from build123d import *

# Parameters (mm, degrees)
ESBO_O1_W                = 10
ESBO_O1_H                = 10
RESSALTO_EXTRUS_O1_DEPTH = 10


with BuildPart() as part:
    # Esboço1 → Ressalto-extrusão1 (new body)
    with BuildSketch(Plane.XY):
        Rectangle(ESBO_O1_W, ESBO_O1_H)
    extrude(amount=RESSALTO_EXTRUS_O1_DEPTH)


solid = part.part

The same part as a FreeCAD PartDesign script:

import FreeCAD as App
import Part
import Sketcher
Q = App.Units.Quantity

doc = App.newDocument("Part")
params = doc.addObject("Spreadsheet::Sheet", "Params")
for row, (alias, value) in enumerate([
    ("sketch1_width", "10 mm"),
    ("pad1_length", "10 mm"),
], start=1):
    params.set(f"A{row}", alias)
    params.set(f"B{row}", "=" + value)
    params.setAlias(f"B{row}", alias)

body = doc.addObject("PartDesign::Body", "Body")

sketch1 = body.newObject("Sketcher::SketchObject", "Sketch")
sketch1.AttachmentSupport = (doc.getObject("XY_Plane"), [""])
sketch1.MapMode = "FlatFace"
sketch1.addGeometry([
    Part.LineSegment(App.Vector(-5, 5, 0), App.Vector(-5, -5, 0)),
    Part.LineSegment(App.Vector(-5, -5, 0), App.Vector(5, -5, 0)),
    Part.LineSegment(App.Vector(5, -5, 0), App.Vector(5, 5, 0)),
    Part.LineSegment(App.Vector(5, 5, 0), App.Vector(-5, 5, 0)),
], False)
sketch1.addConstraint([
    Sketcher.Constraint("Coincident", 0, 2, 1, 1),
    Sketcher.Constraint("Coincident", 1, 2, 2, 1),
    Sketcher.Constraint("Coincident", 2, 2, 3, 1),
    Sketcher.Constraint("Coincident", 3, 2, 0, 1),
    Sketcher.Constraint("Vertical", 0),
    Sketcher.Constraint("Horizontal", 1),
    Sketcher.Constraint("Vertical", 2),
    Sketcher.Constraint("Horizontal", 3),
    Sketcher.Constraint("Symmetric", 0, 2, 2, 2, -1, 1),
    Sketcher.Constraint("Equal", 3, 0),
    Sketcher.Constraint("DistanceX", 1, 1, 1, 2, Q("10 mm")),
])
sketch1.setExpression("Constraints[10]", "Params.sketch1_width")
pad1 = body.newObject("PartDesign::Pad", "Pad")
pad1.Profile = sketch1
pad1.setExpression("Length", "Params.pad1_length")

doc.recompute()
